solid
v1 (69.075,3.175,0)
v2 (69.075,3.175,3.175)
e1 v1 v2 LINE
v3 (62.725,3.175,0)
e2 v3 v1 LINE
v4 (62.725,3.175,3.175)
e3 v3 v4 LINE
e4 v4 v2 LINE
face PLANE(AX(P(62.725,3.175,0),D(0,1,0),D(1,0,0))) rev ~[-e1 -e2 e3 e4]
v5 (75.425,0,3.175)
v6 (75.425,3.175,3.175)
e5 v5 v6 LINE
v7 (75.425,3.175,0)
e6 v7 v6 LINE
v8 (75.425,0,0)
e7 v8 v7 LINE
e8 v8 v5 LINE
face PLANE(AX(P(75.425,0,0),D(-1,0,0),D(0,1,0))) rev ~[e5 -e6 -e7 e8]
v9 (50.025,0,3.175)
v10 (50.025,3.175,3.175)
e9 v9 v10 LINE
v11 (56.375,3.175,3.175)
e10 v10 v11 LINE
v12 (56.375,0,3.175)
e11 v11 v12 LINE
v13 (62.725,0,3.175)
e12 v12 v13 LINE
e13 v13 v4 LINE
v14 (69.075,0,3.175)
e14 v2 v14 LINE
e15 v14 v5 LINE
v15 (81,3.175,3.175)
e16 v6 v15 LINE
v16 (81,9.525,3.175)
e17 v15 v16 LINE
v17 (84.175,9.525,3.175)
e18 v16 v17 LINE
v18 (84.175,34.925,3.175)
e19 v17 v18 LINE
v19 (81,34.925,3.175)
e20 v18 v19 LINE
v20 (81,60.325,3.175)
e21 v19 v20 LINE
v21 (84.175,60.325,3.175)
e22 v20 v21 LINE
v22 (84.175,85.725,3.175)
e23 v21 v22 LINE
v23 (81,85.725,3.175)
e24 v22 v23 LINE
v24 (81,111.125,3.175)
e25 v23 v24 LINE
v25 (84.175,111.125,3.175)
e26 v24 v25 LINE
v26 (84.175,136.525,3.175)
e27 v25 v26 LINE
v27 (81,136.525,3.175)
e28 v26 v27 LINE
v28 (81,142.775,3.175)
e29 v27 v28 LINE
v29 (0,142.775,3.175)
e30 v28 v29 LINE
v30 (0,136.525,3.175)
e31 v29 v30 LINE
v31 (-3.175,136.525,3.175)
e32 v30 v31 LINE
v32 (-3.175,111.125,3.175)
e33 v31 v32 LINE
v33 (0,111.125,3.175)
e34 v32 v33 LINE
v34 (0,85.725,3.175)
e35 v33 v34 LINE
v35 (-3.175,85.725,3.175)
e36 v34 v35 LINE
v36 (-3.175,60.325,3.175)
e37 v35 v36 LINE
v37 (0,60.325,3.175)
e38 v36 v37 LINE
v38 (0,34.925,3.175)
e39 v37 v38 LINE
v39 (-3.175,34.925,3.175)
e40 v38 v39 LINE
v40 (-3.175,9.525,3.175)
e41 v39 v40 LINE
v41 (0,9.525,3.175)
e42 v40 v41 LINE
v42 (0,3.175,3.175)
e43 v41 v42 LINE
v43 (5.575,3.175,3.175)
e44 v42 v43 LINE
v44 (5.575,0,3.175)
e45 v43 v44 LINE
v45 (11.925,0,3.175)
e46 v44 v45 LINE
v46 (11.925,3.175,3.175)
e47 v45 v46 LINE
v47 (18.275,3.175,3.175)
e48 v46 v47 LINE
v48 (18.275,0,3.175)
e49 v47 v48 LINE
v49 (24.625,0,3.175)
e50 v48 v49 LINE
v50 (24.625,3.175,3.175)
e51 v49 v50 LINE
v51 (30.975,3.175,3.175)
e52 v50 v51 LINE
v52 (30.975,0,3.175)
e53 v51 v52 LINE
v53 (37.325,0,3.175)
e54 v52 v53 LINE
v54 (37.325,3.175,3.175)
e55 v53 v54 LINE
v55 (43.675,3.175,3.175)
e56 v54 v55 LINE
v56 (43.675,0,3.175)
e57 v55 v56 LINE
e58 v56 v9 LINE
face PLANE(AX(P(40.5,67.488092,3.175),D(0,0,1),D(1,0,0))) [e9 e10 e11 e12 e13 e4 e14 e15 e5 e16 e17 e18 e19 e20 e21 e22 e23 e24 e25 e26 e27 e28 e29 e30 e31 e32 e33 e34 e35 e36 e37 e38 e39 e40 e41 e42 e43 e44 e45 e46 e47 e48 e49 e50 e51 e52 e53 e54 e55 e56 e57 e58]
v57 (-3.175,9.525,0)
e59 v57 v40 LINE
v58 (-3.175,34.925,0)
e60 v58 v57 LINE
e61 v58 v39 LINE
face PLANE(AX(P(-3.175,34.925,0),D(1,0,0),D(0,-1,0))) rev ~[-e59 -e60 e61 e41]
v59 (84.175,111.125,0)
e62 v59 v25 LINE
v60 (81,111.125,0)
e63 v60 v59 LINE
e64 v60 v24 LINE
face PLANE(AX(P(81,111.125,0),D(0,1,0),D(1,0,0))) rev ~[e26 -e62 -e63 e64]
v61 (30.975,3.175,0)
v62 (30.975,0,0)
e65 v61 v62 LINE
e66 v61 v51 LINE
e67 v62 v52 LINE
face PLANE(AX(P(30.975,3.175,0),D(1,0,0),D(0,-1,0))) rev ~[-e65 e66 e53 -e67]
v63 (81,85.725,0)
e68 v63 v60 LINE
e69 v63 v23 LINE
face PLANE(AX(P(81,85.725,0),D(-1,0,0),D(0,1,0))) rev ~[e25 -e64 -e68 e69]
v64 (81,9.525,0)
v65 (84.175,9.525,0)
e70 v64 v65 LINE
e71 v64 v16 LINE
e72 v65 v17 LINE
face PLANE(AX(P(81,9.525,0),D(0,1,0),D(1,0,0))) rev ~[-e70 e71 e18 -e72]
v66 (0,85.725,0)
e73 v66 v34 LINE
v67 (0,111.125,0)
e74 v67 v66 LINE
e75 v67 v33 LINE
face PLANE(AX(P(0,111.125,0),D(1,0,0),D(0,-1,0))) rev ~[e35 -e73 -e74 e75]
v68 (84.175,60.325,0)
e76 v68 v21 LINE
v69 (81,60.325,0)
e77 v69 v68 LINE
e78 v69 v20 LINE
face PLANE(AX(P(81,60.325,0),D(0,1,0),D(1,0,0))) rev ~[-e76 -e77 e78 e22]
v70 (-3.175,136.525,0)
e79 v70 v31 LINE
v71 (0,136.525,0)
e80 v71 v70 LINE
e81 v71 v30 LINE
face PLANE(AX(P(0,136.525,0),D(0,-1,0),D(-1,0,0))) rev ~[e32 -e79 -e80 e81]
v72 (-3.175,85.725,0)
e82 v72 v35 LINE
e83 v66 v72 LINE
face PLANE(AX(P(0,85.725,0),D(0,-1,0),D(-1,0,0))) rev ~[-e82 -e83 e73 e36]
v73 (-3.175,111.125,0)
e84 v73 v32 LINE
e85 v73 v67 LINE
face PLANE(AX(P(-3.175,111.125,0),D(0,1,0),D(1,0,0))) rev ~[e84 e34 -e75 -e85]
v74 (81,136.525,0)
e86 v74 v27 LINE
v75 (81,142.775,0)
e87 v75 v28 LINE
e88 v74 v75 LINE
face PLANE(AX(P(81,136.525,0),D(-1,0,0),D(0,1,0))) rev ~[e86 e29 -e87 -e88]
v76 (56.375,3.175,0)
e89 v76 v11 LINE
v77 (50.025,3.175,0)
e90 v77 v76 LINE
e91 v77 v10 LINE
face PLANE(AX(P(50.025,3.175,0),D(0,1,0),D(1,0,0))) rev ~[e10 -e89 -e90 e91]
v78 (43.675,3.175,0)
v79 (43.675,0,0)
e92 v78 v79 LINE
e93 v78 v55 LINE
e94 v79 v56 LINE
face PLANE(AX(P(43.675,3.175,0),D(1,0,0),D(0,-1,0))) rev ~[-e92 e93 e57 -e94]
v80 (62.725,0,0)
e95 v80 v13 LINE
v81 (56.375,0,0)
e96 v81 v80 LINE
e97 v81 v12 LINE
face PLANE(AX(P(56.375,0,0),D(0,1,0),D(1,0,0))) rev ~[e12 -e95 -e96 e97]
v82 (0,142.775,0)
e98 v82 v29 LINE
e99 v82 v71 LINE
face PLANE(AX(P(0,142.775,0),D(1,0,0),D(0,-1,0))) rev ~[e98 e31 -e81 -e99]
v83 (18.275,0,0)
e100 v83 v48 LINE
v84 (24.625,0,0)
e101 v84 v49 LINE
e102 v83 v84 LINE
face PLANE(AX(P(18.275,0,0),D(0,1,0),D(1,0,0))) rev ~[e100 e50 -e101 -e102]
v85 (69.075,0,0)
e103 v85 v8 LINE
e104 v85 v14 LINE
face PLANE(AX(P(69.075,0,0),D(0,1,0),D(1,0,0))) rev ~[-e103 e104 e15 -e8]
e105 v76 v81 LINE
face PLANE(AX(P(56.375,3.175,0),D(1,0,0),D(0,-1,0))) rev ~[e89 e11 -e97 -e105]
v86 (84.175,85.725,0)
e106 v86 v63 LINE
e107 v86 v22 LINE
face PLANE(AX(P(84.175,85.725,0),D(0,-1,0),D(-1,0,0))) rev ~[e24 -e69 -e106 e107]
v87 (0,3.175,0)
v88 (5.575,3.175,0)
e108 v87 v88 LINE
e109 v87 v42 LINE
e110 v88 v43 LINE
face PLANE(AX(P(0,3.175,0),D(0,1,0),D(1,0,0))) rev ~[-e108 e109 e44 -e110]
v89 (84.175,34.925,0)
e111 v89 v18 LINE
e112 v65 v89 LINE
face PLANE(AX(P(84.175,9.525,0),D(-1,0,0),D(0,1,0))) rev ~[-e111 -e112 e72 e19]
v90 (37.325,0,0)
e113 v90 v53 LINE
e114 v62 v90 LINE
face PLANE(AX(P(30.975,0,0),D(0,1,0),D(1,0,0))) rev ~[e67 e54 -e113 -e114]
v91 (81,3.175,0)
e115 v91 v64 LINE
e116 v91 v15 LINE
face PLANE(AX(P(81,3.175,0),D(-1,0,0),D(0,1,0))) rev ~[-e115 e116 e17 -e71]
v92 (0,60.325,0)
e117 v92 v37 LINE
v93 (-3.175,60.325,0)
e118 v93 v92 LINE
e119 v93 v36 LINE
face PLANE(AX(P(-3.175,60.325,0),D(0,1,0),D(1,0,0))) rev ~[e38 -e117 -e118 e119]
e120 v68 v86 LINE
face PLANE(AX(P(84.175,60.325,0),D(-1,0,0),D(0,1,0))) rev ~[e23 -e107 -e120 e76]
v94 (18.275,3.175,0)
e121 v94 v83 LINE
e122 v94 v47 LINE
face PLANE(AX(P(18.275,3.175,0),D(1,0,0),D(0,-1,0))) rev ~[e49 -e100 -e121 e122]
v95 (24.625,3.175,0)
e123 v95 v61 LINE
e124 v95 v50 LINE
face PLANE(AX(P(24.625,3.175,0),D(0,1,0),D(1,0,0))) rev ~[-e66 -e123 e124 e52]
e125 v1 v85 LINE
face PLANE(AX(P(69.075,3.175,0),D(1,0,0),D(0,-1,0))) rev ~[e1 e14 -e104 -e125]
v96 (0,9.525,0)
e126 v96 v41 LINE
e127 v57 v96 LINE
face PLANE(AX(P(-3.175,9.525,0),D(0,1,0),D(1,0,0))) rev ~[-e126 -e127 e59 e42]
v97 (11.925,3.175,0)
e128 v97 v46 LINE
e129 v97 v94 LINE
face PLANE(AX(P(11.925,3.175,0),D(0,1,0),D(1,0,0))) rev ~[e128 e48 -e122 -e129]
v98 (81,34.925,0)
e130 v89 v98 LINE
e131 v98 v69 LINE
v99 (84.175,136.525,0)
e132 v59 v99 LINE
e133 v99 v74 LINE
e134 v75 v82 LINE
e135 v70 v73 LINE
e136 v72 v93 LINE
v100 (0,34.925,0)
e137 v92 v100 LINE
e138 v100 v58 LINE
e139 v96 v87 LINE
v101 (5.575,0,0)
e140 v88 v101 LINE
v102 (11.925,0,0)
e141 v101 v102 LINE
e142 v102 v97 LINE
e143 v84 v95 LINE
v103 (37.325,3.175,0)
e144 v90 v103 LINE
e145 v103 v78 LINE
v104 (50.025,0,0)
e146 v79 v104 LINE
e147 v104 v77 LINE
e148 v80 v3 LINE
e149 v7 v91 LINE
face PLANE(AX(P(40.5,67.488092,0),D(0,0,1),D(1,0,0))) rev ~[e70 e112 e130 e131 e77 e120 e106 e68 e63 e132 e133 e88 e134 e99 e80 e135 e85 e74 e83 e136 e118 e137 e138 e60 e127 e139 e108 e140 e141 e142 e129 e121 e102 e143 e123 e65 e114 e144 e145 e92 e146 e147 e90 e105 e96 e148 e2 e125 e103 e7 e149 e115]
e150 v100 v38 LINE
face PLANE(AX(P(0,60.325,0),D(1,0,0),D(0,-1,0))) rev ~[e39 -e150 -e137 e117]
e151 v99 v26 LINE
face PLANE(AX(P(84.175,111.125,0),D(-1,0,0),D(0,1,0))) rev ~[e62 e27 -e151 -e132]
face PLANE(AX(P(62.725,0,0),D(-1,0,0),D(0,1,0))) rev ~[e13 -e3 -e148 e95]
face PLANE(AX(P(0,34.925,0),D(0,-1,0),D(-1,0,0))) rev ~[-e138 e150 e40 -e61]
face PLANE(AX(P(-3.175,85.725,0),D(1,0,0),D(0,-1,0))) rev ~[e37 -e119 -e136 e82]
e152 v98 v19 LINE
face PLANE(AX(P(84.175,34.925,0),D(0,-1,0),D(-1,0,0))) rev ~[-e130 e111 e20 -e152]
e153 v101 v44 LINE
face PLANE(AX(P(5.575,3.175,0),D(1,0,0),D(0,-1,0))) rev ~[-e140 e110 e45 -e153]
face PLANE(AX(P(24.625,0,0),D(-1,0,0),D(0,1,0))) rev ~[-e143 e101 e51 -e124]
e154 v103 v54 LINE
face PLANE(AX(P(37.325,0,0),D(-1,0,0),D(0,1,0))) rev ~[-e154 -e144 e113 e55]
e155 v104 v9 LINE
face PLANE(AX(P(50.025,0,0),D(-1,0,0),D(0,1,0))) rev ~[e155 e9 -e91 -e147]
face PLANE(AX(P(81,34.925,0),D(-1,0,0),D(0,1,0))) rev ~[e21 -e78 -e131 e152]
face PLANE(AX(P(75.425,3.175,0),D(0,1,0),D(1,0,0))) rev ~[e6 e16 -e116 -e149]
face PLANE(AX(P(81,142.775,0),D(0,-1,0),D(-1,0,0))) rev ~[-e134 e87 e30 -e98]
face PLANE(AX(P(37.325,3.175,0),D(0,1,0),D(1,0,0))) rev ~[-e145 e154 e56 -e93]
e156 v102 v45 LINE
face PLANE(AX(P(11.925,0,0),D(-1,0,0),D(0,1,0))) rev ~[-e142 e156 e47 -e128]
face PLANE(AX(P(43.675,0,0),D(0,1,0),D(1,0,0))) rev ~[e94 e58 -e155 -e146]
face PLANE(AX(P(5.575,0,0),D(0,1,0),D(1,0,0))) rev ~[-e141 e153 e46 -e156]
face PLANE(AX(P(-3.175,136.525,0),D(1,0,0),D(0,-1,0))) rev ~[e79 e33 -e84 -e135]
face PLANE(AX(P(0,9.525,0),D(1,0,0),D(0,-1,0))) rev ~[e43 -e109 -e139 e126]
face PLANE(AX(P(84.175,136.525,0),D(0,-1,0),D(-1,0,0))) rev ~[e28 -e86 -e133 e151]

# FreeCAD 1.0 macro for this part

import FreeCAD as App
import Part
import Sketcher
Q = App.Units.Quantity


def add_polygon(sketch, points):
    """Adds a closed chain of lines whose ends are joined by coincident constraints."""
    first, n = sketch.GeometryCount, len(points)
    for a, b in zip(points, points[1:] + points[:1]):
        sketch.addGeometry(Part.LineSegment(App.Vector(*a, 0), App.Vector(*b, 0)), False)
    for i in range(n):
        sketch.addConstraint(Sketcher.Constraint("Coincident", first + i, 2, first + (i + 1) % n, 1))

doc = App.newDocument("Part")
params = doc.addObject("Spreadsheet::Sheet", "Params")
for row, (alias, value) in enumerate([
    ("sketch1_height", "1 in"),
    ("sketch1_width", "0.25 in"),
    ("sketch1_width2", "0.125 in"),
    ("pad1_length", "0.125 in"),
], start=1):
    params.set(f"A{row}", alias)
    params.set(f"B{row}", "=" + value)
    params.setAlias(f"B{row}", alias)

body = doc.addObject("PartDesign::Body", "Body")

# Sketch on XY plane
sketch1 = body.newObject("Sketcher::SketchObject", "Sketch")
sketch1.AttachmentSupport = (doc.getObject("XY_Plane"), [""])
sketch1.MapMode = "FlatFace"
add_polygon(sketch1, [(0, 3.2), (5.6, 3.2), (5.6, 0), (11.9, 0), (11.9, 3.2), (18.3, 3.2), (18.3, 0), (24.6, 0), (24.6, 3.2), (31, 3.2), (31, 0), (37.3, 0), (37.3, 3.2), (43.7, 3.2), (43.7, 0), (50, 0), (50, 3.2), (56.4, 3.2), (56.4, 0), (62.7, 0), (62.7, 3.2), (69.1, 3.2), (69.1, 0), (75.4, 0), (75.4, 3.2), (81, 3.2), (81, 9.5), (84.2, 9.5), (84.2, 34.9), (81, 34.9), (81, 60.3), (84.2, 60.3), (84.2, 85.7), (81, 85.7), (81, 111.1), (84.2, 111.1), (84.2, 136.5), (81, 136.5), (81, 142.8), (0, 142.8), (0, 136.5), (-3.2, 136.5), (-3.2, 111.1), (0, 111.1), (0, 85.7), (-3.2, 85.7), (-3.2, 60.3), (0, 60.3), (0, 34.9), (-3.2, 34.9), (-3.2, 9.5), (0, 9.5)])  # lines 0-51
sketch1.addConstraint(Sketcher.Constraint("Horizontal", 0))
sketch1.addConstraint(Sketcher.Constraint("Vertical", 1))
sketch1.addConstraint(Sketcher.Constraint("Horizontal", 2))
sketch1.addConstraint(Sketcher.Constraint("Vertical", 3))
sketch1.addConstraint(Sketcher.Constraint("Horizontal", 4))
sketch1.addConstraint(Sketcher.Constraint("Vertical", 5))
sketch1.addConstraint(Sketcher.Constraint("Horizontal", 6))
sketch1.addConstraint(Sketcher.Constraint("Vertical", 7))
sketch1.addConstraint(Sketcher.Constraint("Horizontal", 8))
sketch1.addConstraint(Sketcher.Constraint("Vertical", 9))
sketch1.addConstraint(Sketcher.Constraint("Horizontal", 10))
sketch1.addConstraint(Sketcher.Constraint("Vertical", 11))
sketch1.addConstraint(Sketcher.Constraint("Horizontal", 12))
sketch1.addConstraint(Sketcher.Constraint("Vertical", 13))
sketch1.addConstraint(Sketcher.Constraint("Horizontal", 14))
sketch1.addConstraint(Sketcher.Constraint("Vertical", 15))
sketch1.addConstraint(Sketcher.Constraint("Horizontal", 16))
sketch1.addConstraint(Sketcher.Constraint("Vertical", 17))
sketch1.addConstraint(Sketcher.Constraint("Horizontal", 18))
sketch1.addConstraint(Sketcher.Constraint("Vertical", 19))
sketch1.addConstraint(Sketcher.Constraint("Horizontal", 20))
sketch1.addConstraint(Sketcher.Constraint("Vertical", 21))
sketch1.addConstraint(Sketcher.Constraint("Horizontal", 22))
sketch1.addConstraint(Sketcher.Constraint("Vertical", 23))
sketch1.addConstraint(Sketcher.Constraint("Horizontal", 24))
sketch1.addConstraint(Sketcher.Constraint("Vertical", 25))
sketch1.addConstraint(Sketcher.Constraint("Horizontal", 26))
sketch1.addConstraint(Sketcher.Constraint("Vertical", 27))
sketch1.addConstraint(Sketcher.Constraint("Horizontal", 28))
sketch1.addConstraint(Sketcher.Constraint("Vertical", 29))
sketch1.addConstraint(Sketcher.Constraint("Horizontal", 30))
sketch1.addConstraint(Sketcher.Constraint("Vertical", 31))
sketch1.addConstraint(Sketcher.Constraint("Horizontal", 32))
sketch1.addConstraint(Sketcher.Constraint("Vertical", 33))
sketch1.addConstraint(Sketcher.Constraint("Horizontal", 34))
sketch1.addConstraint(Sketcher.Constraint("Vertical", 35))
sketch1.addConstraint(Sketcher.Constraint("Horizontal", 36))
sketch1.addConstraint(Sketcher.Constraint("Vertical", 37))
sketch1.addConstraint(Sketcher.Constraint("Horizontal", 38))
sketch1.addConstraint(Sketcher.Constraint("Vertical", 39))
sketch1.addConstraint(Sketcher.Constraint("Horizontal", 40))
sketch1.addConstraint(Sketcher.Constraint("Vertical", 41))
sketch1.addConstraint(Sketcher.Constraint("Horizontal", 42))
sketch1.addConstraint(Sketcher.Constraint("Vertical", 43))
sketch1.addConstraint(Sketcher.Constraint("Horizontal", 44))
sketch1.addConstraint(Sketcher.Constraint("Vertical", 45))
sketch1.addConstraint(Sketcher.Constraint("Horizontal", 46))
sketch1.addConstraint(Sketcher.Constraint("Vertical", 47))
sketch1.addConstraint(Sketcher.Constraint("Horizontal", 48))
sketch1.addConstraint(Sketcher.Constraint("Vertical", 49))
sketch1.addConstraint(Sketcher.Constraint("Horizontal", 50))
sketch1.addConstraint(Sketcher.Constraint("Vertical", 51))
sketch1.addConstraint(Sketcher.Constraint("PointOnObject", 1, 2, -1))
sketch1.addConstraint(Sketcher.Constraint("PointOnObject", 5, 2, -1))
sketch1.addConstraint(Sketcher.Constraint("PointOnObject", 9, 2, -1))
sketch1.addConstraint(Sketcher.Constraint("PointOnObject", 13, 2, -1))
sketch1.addConstraint(Sketcher.Constraint("PointOnObject", 17, 2, -1))
sketch1.addConstraint(Sketcher.Constraint("PointOnObject", 21, 2, -1))
sketch1.addConstraint(Sketcher.Constraint("PointOnObject", 38, 2, -2))
sketch1.addConstraint(Sketcher.Constraint("PointOnObject", 42, 2, -2))
sketch1.addConstraint(Sketcher.Constraint("PointOnObject", 46, 2, -2))
sketch1.addConstraint(Sketcher.Constraint("PointOnObject", 50, 2, -2))
sketch1.addConstraint(Sketcher.Constraint("Horizontal", 0, 2, 3, 2))
sketch1.addConstraint(Sketcher.Constraint("Horizontal", 4, 2, 7, 2))
sketch1.addConstraint(Sketcher.Constraint("Horizontal", 8, 2, 11, 2))
sketch1.addConstraint(Sketcher.Constraint("Horizontal", 12, 2, 15, 2))
sketch1.addConstraint(Sketcher.Constraint("Horizontal", 16, 2, 19, 2))
sketch1.addConstraint(Sketcher.Constraint("Horizontal", 20, 2, 23, 2))
sketch1.addConstraint(Sketcher.Constraint("Horizontal", 36, 2, 39, 2))
sketch1.addConstraint(Sketcher.Constraint("Horizontal", 34, 2, 41, 2))
sketch1.addConstraint(Sketcher.Constraint("Horizontal", 32, 2, 43, 2))
sketch1.addConstraint(Sketcher.Constraint("Horizontal", 30, 2, 45, 2))
sketch1.addConstraint(Sketcher.Constraint("Horizontal", 28, 2, 47, 2))
sketch1.addConstraint(Sketcher.Constraint("Horizontal", 26, 2, 49, 2))
sketch1.addConstraint(Sketcher.Constraint("Vertical", 25, 2, 28, 2))
sketch1.addConstraint(Sketcher.Constraint("Vertical", 27, 2, 30, 2))
sketch1.addConstraint(Sketcher.Constraint("Vertical", 29, 2, 32, 2))
sketch1.addConstraint(Sketcher.Constraint("Vertical", 31, 2, 34, 2))
sketch1.addConstraint(Sketcher.Constraint("Vertical", 33, 2, 36, 2))
sketch1.addConstraint(Sketcher.Constraint("Vertical", 41, 2, 44, 2))
sketch1.addConstraint(Sketcher.Constraint("Vertical", 45, 2, 48, 2))
sketch1.addConstraint(Sketcher.Constraint("Equal", 2, 4))
sketch1.addConstraint(Sketcher.Constraint("Equal", 4, 6))
sketch1.addConstraint(Sketcher.Constraint("Equal", 6, 8))
sketch1.addConstraint(Sketcher.Constraint("Equal", 8, 10))
sketch1.addConstraint(Sketcher.Constraint("Equal", 10, 12))
sketch1.addConstraint(Sketcher.Constraint("Equal", 12, 14))
sketch1.addConstraint(Sketcher.Constraint("Equal", 14, 16))
sketch1.addConstraint(Sketcher.Constraint("Equal", 16, 18))
sketch1.addConstraint(Sketcher.Constraint("Equal", 18, 20))
sketch1.addConstraint(Sketcher.Constraint("Equal", 20, 22))
sketch1.addConstraint(Sketcher.Constraint("Equal", 0, 24))
sketch1.addConstraint(Sketcher.Constraint("Equal", 36, 40))
sketch1.addConstraint(Sketcher.Constraint("Equal", 50, 1))
sketch1.addConstraint(Sketcher.Constraint("Equal", 22, 25))
sketch1.addConstraint(Sketcher.Constraint("Equal", 27, 29))
sketch1.addConstraint(Sketcher.Constraint("Equal", 29, 31))
sketch1.addConstraint(Sketcher.Constraint("Equal", 31, 33))
sketch1.addConstraint(Sketcher.Constraint("Equal", 33, 35))
sketch1.addConstraint(Sketcher.Constraint("DistanceY", 27, 1, 27, 2, Q("1 in")))
sketch1.addConstraint(Sketcher.Constraint("DistanceX", 2, 1, 2, 2, Q("0.25 in")))
sketch1.addConstraint(Sketcher.Constraint("DistanceX", 26, 1, 26, 2, Q("0.125 in")))
sketch1.addConstraint(Sketcher.Constraint("DistanceX", 0, 1, 0, 2, 5.575))
sketch1.addConstraint(Sketcher.Constraint("DistanceY", 37, 1, 37, 2, 6.25))
sketch1.setExpression("Constraints[151]", "Params.sketch1_height")
sketch1.setExpression("Constraints[152]", "Params.sketch1_width")
sketch1.setExpression("Constraints[153]", "Params.sketch1_width2")
pad1 = body.newObject("PartDesign::Pad", "Pad")
pad1.Profile = sketch1
pad1.setExpression("Length", "Params.pad1_length")

doc.recompute()
